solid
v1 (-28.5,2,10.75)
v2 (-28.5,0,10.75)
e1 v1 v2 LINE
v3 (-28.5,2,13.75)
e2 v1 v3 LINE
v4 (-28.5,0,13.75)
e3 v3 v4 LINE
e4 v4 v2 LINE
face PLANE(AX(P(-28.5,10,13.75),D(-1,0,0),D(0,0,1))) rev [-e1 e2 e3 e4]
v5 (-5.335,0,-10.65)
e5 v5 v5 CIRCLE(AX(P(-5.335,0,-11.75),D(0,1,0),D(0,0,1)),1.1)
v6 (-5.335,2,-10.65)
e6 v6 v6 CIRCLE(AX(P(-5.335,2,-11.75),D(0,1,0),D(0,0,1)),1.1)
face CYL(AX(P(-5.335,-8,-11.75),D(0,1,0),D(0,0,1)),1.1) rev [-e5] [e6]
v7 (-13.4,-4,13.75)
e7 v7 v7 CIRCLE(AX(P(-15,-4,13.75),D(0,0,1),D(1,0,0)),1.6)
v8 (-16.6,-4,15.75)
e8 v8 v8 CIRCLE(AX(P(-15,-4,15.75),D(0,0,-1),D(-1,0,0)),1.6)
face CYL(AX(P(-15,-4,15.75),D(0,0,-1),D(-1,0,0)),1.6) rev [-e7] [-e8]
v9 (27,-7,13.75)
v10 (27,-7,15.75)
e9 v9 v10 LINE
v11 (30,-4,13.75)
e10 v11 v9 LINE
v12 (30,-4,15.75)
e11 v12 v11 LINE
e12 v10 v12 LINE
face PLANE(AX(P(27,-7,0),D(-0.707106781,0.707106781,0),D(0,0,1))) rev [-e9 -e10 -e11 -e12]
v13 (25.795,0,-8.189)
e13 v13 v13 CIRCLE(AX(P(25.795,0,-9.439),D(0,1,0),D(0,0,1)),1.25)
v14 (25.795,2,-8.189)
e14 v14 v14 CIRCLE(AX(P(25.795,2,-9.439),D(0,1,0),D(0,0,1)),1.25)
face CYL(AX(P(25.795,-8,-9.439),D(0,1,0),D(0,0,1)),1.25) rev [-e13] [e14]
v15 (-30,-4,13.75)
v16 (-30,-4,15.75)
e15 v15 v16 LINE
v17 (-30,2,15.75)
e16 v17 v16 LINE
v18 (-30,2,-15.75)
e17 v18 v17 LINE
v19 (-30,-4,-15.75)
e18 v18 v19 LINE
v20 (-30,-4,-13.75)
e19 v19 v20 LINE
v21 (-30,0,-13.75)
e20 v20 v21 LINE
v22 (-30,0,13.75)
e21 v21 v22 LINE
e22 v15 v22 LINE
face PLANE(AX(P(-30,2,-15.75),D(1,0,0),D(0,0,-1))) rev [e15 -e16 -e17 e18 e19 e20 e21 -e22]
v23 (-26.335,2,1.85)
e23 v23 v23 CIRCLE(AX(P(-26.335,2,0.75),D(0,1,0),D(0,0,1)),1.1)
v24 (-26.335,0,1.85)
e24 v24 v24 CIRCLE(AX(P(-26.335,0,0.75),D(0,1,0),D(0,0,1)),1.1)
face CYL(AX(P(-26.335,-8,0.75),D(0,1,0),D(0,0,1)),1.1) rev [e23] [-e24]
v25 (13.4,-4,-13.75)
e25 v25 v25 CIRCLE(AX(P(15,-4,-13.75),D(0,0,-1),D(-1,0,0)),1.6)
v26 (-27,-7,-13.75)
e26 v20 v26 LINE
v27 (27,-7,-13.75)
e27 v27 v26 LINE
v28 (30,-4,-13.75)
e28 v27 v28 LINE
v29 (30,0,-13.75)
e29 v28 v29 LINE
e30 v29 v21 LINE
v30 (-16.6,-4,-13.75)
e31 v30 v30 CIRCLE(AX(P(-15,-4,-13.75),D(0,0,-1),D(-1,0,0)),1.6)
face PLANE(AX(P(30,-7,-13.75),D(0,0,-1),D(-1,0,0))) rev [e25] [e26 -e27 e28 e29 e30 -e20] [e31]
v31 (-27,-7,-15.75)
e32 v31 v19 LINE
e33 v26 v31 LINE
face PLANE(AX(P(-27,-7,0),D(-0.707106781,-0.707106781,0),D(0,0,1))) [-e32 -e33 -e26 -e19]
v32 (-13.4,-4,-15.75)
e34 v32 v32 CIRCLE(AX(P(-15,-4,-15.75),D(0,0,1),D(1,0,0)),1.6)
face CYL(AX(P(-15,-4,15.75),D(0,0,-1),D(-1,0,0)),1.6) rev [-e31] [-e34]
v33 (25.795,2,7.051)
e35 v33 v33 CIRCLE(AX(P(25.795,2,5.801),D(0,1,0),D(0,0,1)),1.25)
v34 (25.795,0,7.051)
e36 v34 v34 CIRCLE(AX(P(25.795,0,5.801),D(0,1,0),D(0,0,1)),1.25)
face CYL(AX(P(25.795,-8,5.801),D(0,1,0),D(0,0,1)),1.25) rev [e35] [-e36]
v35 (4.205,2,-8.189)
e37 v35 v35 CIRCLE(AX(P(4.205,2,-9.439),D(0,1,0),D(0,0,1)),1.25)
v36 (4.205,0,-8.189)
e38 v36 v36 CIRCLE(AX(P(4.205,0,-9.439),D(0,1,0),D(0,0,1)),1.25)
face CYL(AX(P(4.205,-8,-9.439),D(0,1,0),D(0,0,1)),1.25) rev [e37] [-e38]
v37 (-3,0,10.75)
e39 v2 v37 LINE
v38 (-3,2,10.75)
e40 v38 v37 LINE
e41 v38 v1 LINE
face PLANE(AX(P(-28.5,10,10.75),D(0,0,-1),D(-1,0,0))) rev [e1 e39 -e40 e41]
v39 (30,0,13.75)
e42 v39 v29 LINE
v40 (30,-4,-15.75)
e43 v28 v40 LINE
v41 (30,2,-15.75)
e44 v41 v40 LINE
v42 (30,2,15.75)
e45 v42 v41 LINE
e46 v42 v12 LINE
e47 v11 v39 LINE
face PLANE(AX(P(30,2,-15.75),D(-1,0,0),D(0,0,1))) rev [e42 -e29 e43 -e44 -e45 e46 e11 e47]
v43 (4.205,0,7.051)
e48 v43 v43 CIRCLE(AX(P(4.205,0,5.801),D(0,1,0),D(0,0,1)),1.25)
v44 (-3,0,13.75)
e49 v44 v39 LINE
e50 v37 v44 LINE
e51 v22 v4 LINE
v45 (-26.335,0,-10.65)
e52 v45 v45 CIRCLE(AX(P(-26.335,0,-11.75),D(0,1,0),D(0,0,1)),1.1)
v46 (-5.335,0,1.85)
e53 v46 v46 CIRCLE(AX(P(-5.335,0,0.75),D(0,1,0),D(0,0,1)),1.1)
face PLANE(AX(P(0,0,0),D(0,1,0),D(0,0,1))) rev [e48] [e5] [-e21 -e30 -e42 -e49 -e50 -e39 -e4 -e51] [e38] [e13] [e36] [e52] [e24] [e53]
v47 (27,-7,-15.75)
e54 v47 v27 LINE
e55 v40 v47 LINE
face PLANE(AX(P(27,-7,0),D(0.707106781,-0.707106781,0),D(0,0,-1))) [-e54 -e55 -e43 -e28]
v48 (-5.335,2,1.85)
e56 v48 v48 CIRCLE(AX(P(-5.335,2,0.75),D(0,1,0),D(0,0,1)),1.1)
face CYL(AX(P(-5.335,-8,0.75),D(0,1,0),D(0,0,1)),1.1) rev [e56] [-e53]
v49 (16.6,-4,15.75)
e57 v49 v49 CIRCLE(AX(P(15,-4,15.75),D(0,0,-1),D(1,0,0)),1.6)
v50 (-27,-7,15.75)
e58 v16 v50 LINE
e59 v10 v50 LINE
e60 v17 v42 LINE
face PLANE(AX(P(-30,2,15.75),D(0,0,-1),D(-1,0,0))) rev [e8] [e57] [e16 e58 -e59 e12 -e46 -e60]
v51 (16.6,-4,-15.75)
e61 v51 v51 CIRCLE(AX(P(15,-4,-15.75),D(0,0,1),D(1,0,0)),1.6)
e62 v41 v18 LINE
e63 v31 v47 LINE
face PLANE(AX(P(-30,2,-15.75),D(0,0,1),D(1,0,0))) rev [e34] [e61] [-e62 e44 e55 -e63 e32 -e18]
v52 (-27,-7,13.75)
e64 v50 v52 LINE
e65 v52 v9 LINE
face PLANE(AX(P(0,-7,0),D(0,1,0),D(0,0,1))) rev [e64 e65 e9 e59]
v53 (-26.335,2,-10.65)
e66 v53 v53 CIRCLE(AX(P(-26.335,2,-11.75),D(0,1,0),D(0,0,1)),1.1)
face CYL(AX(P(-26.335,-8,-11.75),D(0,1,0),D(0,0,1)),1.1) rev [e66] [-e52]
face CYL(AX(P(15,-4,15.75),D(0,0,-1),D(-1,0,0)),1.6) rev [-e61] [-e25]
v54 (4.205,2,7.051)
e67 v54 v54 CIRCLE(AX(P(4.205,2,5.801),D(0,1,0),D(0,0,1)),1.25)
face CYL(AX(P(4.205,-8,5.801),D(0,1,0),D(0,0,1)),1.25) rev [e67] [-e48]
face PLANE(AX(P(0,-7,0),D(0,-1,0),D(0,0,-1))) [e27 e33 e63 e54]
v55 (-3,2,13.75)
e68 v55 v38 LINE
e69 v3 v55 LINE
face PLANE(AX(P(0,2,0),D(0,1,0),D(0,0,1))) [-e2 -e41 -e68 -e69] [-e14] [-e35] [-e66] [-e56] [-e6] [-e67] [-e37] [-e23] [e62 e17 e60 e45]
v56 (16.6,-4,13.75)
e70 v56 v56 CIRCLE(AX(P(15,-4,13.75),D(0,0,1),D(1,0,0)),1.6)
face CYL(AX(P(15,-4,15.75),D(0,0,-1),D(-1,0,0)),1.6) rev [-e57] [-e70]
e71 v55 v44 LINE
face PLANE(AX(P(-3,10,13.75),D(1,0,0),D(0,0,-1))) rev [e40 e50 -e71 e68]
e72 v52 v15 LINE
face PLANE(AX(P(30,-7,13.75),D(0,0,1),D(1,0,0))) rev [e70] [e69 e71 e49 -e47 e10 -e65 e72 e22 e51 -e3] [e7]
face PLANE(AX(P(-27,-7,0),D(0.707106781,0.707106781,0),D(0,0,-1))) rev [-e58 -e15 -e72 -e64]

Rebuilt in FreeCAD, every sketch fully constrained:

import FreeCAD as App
import Part
import Sketcher

V = App.Vector


def edges_at(feature, points):
    """Names of the edges that pass closest to the given points."""
    edges = feature.Shape.Edges
    near = lambda p: min(range(len(edges)), key=lambda i: edges[i].distToShape(Part.Vertex(*p))[0])
    return sorted({f"Edge{near(p) + 1}" for p in points})

doc = App.newDocument("Part")
body = doc.addObject("PartDesign::Body", "Body")

sketch1 = body.newObject("Sketcher::SketchObject", "Sketch")
sketch1.AttachmentSupport = (doc.getObject("XZ_Plane"), [""])
sketch1.MapMode = "FlatFace"
sketch1.addGeometry(Part.LineSegment(V(-30, -16, 0), V(-30, 16, 0)), False)
sketch1.addGeometry(Part.LineSegment(V(-30, 16, 0), V(30, 16, 0)), False)
sketch1.addGeometry(Part.LineSegment(V(30, 16, 0), V(30, -16, 0)), False)
sketch1.addGeometry(Part.LineSegment(V(30, -16, 0), V(-30, -16, 0)), False)
sketch1.addConstraint(Sketcher.Constraint("Coincident", 0, 2, 1, 1))
sketch1.addConstraint(Sketcher.Constraint("Coincident", 1, 2, 2, 1))
sketch1.addConstraint(Sketcher.Constraint("Coincident", 2, 2, 3, 1))
sketch1.addConstraint(Sketcher.Constraint("Coincident", 3, 2, 0, 1))
sketch1.addConstraint(Sketcher.Constraint("Vertical", 0))
sketch1.addConstraint(Sketcher.Constraint("Horizontal", 1))
sketch1.addConstraint(Sketcher.Constraint("Vertical", 2))
sketch1.addConstraint(Sketcher.Constraint("Horizontal", 3))
sketch1.addConstraint(Sketcher.Constraint("Symmetric", 0, 2, 2, 2, -1, 1))
sketch1.addConstraint(Sketcher.Constraint("DistanceX", 1, 1, 1, 2, 60.0))
sketch1.addConstraint(Sketcher.Constraint("DistanceY", 0, 1, 0, 2, 31.5))
pad1 = body.newObject("PartDesign::Pad", "Pad")
pad1.Profile = sketch1
pad1.Length = 2
pad1.Reversed = True

sketch2 = body.newObject("Sketcher::SketchObject", "Sketch001")
sketch2.AttachmentSupport = (doc.getObject("XZ_Plane"), [""])
sketch2.MapMode = "FlatFace"
sketch2.addGeometry(Part.LineSegment(V(-30, -13.8, 0), V(-30, -15.8, 0)), False)
sketch2.addGeometry(Part.LineSegment(V(-30, -15.8, 0), V(30, -15.8, 0)), False)
sketch2.addGeometry(Part.LineSegment(V(30, -15.8, 0), V(30, -13.8, 0)), False)
sketch2.addGeometry(Part.LineSegment(V(30, -13.8, 0), V(-30, -13.8, 0)), False)
sketch2.addGeometry(Part.LineSegment(V(-30, 15.8, 0), V(-30, 13.8, 0)), False)
sketch2.addGeometry(Part.LineSegment(V(-30, 13.8, 0), V(30, 13.8, 0)), False)
sketch2.addGeometry(Part.LineSegment(V(30, 13.8, 0), V(30, 15.8, 0)), False)
sketch2.addGeometry(Part.LineSegment(V(30, 15.8, 0), V(-30, 15.8, 0)), False)
sketch2.addConstraint(Sketcher.Constraint("Coincident", 0, 2, 1, 1))
sketch2.addConstraint(Sketcher.Constraint("Coincident", 1, 2, 2, 1))
sketch2.addConstraint(Sketcher.Constraint("Coincident", 2, 2, 3, 1))
sketch2.addConstraint(Sketcher.Constraint("Coincident", 3, 2, 0, 1))
sketch2.addConstraint(Sketcher.Constraint("Coincident", 4, 2, 5, 1))
sketch2.addConstraint(Sketcher.Constraint("Coincident", 5, 2, 6, 1))
sketch2.addConstraint(Sketcher.Constraint("Coincident", 6, 2, 7, 1))
sketch2.addConstraint(Sketcher.Constraint("Coincident", 7, 2, 4, 1))
sketch2.addConstraint(Sketcher.Constraint("Vertical", 0))
sketch2.addConstraint(Sketcher.Constraint("Horizontal", 1))
sketch2.addConstraint(Sketcher.Constraint("Vertical", 2))
sketch2.addConstraint(Sketcher.Constraint("Horizontal", 3))
sketch2.addConstraint(Sketcher.Constraint("Vertical", 4))
sketch2.addConstraint(Sketcher.Constraint("Horizontal", 5))
sketch2.addConstraint(Sketcher.Constraint("Vertical", 6))
sketch2.addConstraint(Sketcher.Constraint("Horizontal", 7))
sketch2.addConstraint(Sketcher.Constraint("Symmetric", 2, 2, 4, 2, -1, 1))
sketch2.addConstraint(Sketcher.Constraint("Symmetric", 0, 2, 6, 2, -1, 1))
sketch2.addConstraint(Sketcher.Constraint("Vertical", 3, 2, 4, 2))
sketch2.addConstraint(Sketcher.Constraint("DistanceX", 1, 1, 1, 2, 60.0))
sketch2.addConstraint(Sketcher.Constraint("DistanceY", 0, 2, 0, 1, 2.0))
sketch2.addConstraint(Sketcher.Constraint("DistanceY", 3, 2, 4, 2, 27.5))
pad2 = body.newObject("PartDesign::Pad", "Pad001")
pad2.Profile = sketch2
pad2.Length = 7

sketch3 = body.newObject("Sketcher::SketchObject", "Sketch002")
sketch3.AttachmentSupport = (doc.getObject("XY_Plane"), [""])
sketch3.MapMode = "FlatFace"
sketch3.AttachmentOffset = App.Placement(V(0, 0, -15.75), App.Rotation())
sketch3.addGeometry(Part.Circle(V(-15, -4, 0), V(0, 0, 1), 1.6), False)
sketch3.addGeometry(Part.Circle(V(15, -4, 0), V(0, 0, 1), 1.6), False)
sketch3.addConstraint(Sketcher.Constraint("Equal", 0, 1))
sketch3.addConstraint(Sketcher.Constraint("Symmetric", 0, 3, 1, 3, -2))
sketch3.addConstraint(Sketcher.Constraint("Diameter", 0, 3.2))
sketch3.addConstraint(Sketcher.Constraint("DistanceX", 0, 3, -1, 1, 15.0))
sketch3.addConstraint(Sketcher.Constraint("DistanceY", 0, 3, -1, 1, 4.0))
pocket1 = body.newObject("PartDesign::Pocket", "Pocket")
pocket1.Profile = sketch3
pocket1.Type = "ThroughAll"
pocket1.Midplane = True
doc.recompute()

chamfer = body.newObject("PartDesign::Chamfer", "Chamfer")
chamfer.Base = (pocket1, edges_at(pocket1, [(30, -7, -14.75), (-30, -7, -14.75)]))
chamfer.Size = 3
doc.recompute()

chamfer2 = body.newObject("PartDesign::Chamfer", "Chamfer001")
chamfer2.Base = (chamfer, edges_at(chamfer, [(30, -7, 14.75), (-30, -7, 14.75)]))
chamfer2.Size = 3

sketch4 = body.newObject("Sketcher::SketchObject", "Sketch003")
sketch4.AttachmentSupport = (doc.getObject("XZ_Plane"), [""])
sketch4.MapMode = "FlatFace"
sketch4.AttachmentOffset = App.Placement(V(0, 0, -2), App.Rotation())
sketch4.addGeometry(Part.Circle(V(25.8, 5.8, 0), V(0, 0, 1), 1.2), False)
sketch4.addGeometry(Part.Circle(V(4.2, 5.8, 0), V(0, 0, 1), 1.2), False)
sketch4.addGeometry(Part.Circle(V(25.8, -9.4, 0), V(0, 0, 1), 1.2), False)
sketch4.addGeometry(Part.Circle(V(4.2, -9.4, 0), V(0, 0, 1), 1.2), False)
sketch4.addGeometry(Part.Circle(V(-26.3, 0.8, 0), V(0, 0, 1), 1.1), False)
sketch4.addGeometry(Part.Circle(V(-26.3, -11.8, 0), V(0, 0, 1), 1.1), False)
sketch4.addGeometry(Part.Circle(V(-5.3, 0.8, 0), V(0, 0, 1), 1.1), False)
sketch4.addGeometry(Part.Circle(V(-5.3, -11.8, 0), V(0, 0, 1), 1.1), False)
sketch4.addConstraint(Sketcher.Constraint("Equal", 0, 1))
sketch4.addConstraint(Sketcher.Constraint("Equal", 1, 2))
sketch4.addConstraint(Sketcher.Constraint("Equal", 2, 3))
sketch4.addConstraint(Sketcher.Constraint("Equal", 4, 5))
sketch4.addConstraint(Sketcher.Constraint("Equal", 5, 6))
sketch4.addConstraint(Sketcher.Constraint("Equal", 6, 7))
sketch4.addConstraint(Sketcher.Constraint("Horizontal", 0, 3, 1, 3))
sketch4.addConstraint(Sketcher.Constraint("Horizontal", 2, 3, 3, 3))
sketch4.addConstraint(Sketcher.Constraint("Horizontal", 4, 3, 6, 3))
sketch4.addConstraint(Sketcher.Constraint("Horizontal", 5, 3, 7, 3))
sketch4.addConstraint(Sketcher.Constraint("Vertical", 0, 3, 2, 3))
sketch4.addConstraint(Sketcher.Constraint("Vertical", 1, 3, 3, 3))
sketch4.addConstraint(Sketcher.Constraint("Vertical", 4, 3, 5, 3))
sketch4.addConstraint(Sketcher.Constraint("Vertical", 6, 3, 7, 3))
sketch4.addConstraint(Sketcher.Constraint("Diameter", 0, 2.5))
sketch4.addConstraint(Sketcher.Constraint("Diameter", 4, 2.2))
sketch4.addConstraint(Sketcher.Constraint("DistanceX", 4, 3, 6, 3, 21.0))
sketch4.addConstraint(Sketcher.Constraint("DistanceY", 5, 3, 4, 3, 12.5))
sketch4.addConstraint(Sketcher.Constraint("DistanceY", -1, 1, 4, 3, 0.75))
sketch4.addConstraint(Sketcher.Constraint("DistanceX", 1, 3, 0, 3, 21.59))
sketch4.addConstraint(Sketcher.Constraint("DistanceY", 2, 3, 0, 3, 15.24))
sketch4.addConstraint(Sketcher.Constraint("DistanceX", 4, 3, 1, 3, 30.54))
sketch4.addConstraint(Sketcher.Constraint("DistanceX", -1, 1, 0, 3, 25.795))
sketch4.addConstraint(Sketcher.Constraint("DistanceY", -1, 1, 0, 3, 5.801))
pocket2 = body.newObject("PartDesign::Pocket", "Pocket001")
pocket2.Profile = sketch4
pocket2.Length = 10
pocket2.Reversed = True

sketch5 = body.newObject("Sketcher::SketchObject", "Sketch004")
sketch5.AttachmentSupport = (doc.getObject("XZ_Plane"), [""])
sketch5.MapMode = "FlatFace"
sketch5.addGeometry(Part.LineSegment(V(-28.5, 13.8, 0), V(-28.5, 10.8, 0)), False)
sketch5.addGeometry(Part.LineSegment(V(-28.5, 10.8, 0), V(-3, 10.8, 0)), False)
sketch5.addGeometry(Part.LineSegment(V(-3, 10.8, 0), V(-3, 13.8, 0)), False)
sketch5.addGeometry(Part.LineSegment(V(-3, 13.8, 0), V(-28.5, 13.8, 0)), False)
sketch5.addConstraint(Sketcher.Constraint("Coincident", 0, 2, 1, 1))
sketch5.addConstraint(Sketcher.Constraint("Coincident", 1, 2, 2, 1))
sketch5.addConstraint(Sketcher.Constraint("Coincident", 2, 2, 3, 1))
sketch5.addConstraint(Sketcher.Constraint("Coincident", 3, 2, 0, 1))
sketch5.addConstraint(Sketcher.Constraint("Vertical", 0))
sketch5.addConstraint(Sketcher.Constraint("Horizontal", 1))
sketch5.addConstraint(Sketcher.Constraint("Vertical", 2))
sketch5.addConstraint(Sketcher.Constraint("Horizontal", 3))
sketch5.addConstraint(Sketcher.Constraint("DistanceY", 0, 2, 0, 1, 3.0))
sketch5.addConstraint(Sketcher.Constraint("DistanceX", 1, 1, 1, 2, 25.5))
sketch5.addConstraint(Sketcher.Constraint("DistanceX", 1, 2, -1, 1, 3.0))
sketch5.addConstraint(Sketcher.Constraint("DistanceY", -1, 1, 0, 2, 10.75))
pocket3 = body.newObject("PartDesign::Pocket", "Pocket002")
pocket3.Profile = sketch5
pocket3.Length = 10

doc.recompute()
